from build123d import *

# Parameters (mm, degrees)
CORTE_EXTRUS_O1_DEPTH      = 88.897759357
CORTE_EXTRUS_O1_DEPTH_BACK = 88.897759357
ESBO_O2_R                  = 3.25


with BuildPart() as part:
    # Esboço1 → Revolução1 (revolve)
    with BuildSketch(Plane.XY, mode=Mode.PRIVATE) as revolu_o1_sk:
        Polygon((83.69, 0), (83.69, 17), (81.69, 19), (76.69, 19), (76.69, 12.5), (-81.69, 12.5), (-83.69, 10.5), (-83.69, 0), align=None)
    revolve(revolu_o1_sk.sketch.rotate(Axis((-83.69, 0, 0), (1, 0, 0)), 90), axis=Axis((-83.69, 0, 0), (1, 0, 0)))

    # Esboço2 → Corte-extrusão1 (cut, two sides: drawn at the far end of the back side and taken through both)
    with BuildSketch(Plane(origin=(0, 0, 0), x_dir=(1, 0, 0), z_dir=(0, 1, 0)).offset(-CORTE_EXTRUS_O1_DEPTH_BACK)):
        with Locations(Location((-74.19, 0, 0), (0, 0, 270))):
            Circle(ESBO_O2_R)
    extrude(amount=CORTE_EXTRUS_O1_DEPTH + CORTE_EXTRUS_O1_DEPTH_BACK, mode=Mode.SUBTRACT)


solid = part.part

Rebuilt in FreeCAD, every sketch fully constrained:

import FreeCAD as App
import Part
import Sketcher
from FreeCAD import Vector
Q = App.Units.Quantity

doc = App.newDocument("Part")
body = doc.addObject("PartDesign::Body", "Body")

# Sketch on XY plane
sketch1 = body.newObject("Sketcher::SketchObject", "Sketch")
sketch1.AttachmentSupport = (doc.getObject("XY_Plane"), [""])
sketch1.MapMode = "FlatFace"
sketch1.addGeometry([
    Part.LineSegment(Vector(83.7, 0, 0), Vector(83.7, 17, 0)),  # 0
    Part.LineSegment(Vector(83.7, 17, 0), Vector(81.7, 19, 0)),  # 1
    Part.LineSegment(Vector(81.7, 19, 0), Vector(76.7, 19, 0)),  # 2
    Part.LineSegment(Vector(76.7, 19, 0), Vector(76.7, 12.5, 0)),  # 3
    Part.LineSegment(Vector(76.7, 12.5, 0), Vector(-81.7, 12.5, 0)),  # 4
    Part.LineSegment(Vector(-81.7, 12.5, 0), Vector(-83.7, 10.5, 0)),  # 5
    Part.LineSegment(Vector(-83.7, 10.5, 0), Vector(-83.7, 0, 0)),  # 6
    Part.LineSegment(Vector(-83.7, 0, 0), Vector(83.7, 0, 0)),  # 7
], False)
sketch1.addConstraint([
    Sketcher.Constraint("Coincident", 0, 2, 1, 1),
    Sketcher.Constraint("Coincident", 1, 2, 2, 1),
    Sketcher.Constraint("Coincident", 2, 2, 3, 1),
    Sketcher.Constraint("Coincident", 3, 2, 4, 1),
    Sketcher.Constraint("Coincident", 4, 2, 5, 1),
    Sketcher.Constraint("Coincident", 5, 2, 6, 1),
    Sketcher.Constraint("Coincident", 6, 2, 7, 1),
    Sketcher.Constraint("Coincident", 7, 2, 0, 1),
    Sketcher.Constraint("Vertical", 0),
    Sketcher.Constraint("Horizontal", 2),
    Sketcher.Constraint("Vertical", 3),
    Sketcher.Constraint("Horizontal", 4),
    Sketcher.Constraint("Vertical", 6),
    Sketcher.Constraint("Horizontal", 7),
    Sketcher.Constraint("Symmetric", 6, 2, 7, 2, -1, 1),
    Sketcher.Constraint("Perpendicular", 1, 5),
    Sketcher.Constraint("Equal", 1, 5),
    Sketcher.Constraint("DistanceX", 2, 2, 2, 1, 5.0),
    Sketcher.Constraint("DistanceY", 0, 1, 0, 2, 17.0),
    Sketcher.Constraint("Angle", 1, Q("135 deg")),
    Sketcher.Constraint("DistanceY", 3, 2, 3, 1, 6.5),
    Sketcher.Constraint("DistanceY", -1, 1, 1, 2, 19.0),
    Sketcher.Constraint("DistanceX", 4, 2, 4, 1, 158.38),
])
revolution = body.newObject("PartDesign::Revolution", "Revolution")
revolution.Profile = sketch1
revolution.ReferenceAxis = (sketch1, ["H_Axis"])
revolution.Angle = 360

# Sketch on XZ plane
sketch2 = body.newObject("Sketcher::SketchObject", "Sketch001")
sketch2.AttachmentSupport = (doc.getObject("XZ_Plane"), [""])
sketch2.MapMode = "FlatFace"
sketch2.addGeometry(Part.Circle(Vector(-74.2, 0, 0), Vector(0, 0, 1), 3.2), False)
sketch2.addConstraint([
    Sketcher.Constraint("PointOnObject", 0, 3, -1),
    Sketcher.Constraint("Diameter", 0, 6.5),
    Sketcher.Constraint("DistanceX", 0, 3, -1, 1, 74.19),
])
pocket1 = body.newObject("PartDesign::Pocket", "Pocket")
pocket1.Profile = sketch2
pocket1.Type = "ThroughAll"
pocket1.Midplane = True

doc.recompute()
